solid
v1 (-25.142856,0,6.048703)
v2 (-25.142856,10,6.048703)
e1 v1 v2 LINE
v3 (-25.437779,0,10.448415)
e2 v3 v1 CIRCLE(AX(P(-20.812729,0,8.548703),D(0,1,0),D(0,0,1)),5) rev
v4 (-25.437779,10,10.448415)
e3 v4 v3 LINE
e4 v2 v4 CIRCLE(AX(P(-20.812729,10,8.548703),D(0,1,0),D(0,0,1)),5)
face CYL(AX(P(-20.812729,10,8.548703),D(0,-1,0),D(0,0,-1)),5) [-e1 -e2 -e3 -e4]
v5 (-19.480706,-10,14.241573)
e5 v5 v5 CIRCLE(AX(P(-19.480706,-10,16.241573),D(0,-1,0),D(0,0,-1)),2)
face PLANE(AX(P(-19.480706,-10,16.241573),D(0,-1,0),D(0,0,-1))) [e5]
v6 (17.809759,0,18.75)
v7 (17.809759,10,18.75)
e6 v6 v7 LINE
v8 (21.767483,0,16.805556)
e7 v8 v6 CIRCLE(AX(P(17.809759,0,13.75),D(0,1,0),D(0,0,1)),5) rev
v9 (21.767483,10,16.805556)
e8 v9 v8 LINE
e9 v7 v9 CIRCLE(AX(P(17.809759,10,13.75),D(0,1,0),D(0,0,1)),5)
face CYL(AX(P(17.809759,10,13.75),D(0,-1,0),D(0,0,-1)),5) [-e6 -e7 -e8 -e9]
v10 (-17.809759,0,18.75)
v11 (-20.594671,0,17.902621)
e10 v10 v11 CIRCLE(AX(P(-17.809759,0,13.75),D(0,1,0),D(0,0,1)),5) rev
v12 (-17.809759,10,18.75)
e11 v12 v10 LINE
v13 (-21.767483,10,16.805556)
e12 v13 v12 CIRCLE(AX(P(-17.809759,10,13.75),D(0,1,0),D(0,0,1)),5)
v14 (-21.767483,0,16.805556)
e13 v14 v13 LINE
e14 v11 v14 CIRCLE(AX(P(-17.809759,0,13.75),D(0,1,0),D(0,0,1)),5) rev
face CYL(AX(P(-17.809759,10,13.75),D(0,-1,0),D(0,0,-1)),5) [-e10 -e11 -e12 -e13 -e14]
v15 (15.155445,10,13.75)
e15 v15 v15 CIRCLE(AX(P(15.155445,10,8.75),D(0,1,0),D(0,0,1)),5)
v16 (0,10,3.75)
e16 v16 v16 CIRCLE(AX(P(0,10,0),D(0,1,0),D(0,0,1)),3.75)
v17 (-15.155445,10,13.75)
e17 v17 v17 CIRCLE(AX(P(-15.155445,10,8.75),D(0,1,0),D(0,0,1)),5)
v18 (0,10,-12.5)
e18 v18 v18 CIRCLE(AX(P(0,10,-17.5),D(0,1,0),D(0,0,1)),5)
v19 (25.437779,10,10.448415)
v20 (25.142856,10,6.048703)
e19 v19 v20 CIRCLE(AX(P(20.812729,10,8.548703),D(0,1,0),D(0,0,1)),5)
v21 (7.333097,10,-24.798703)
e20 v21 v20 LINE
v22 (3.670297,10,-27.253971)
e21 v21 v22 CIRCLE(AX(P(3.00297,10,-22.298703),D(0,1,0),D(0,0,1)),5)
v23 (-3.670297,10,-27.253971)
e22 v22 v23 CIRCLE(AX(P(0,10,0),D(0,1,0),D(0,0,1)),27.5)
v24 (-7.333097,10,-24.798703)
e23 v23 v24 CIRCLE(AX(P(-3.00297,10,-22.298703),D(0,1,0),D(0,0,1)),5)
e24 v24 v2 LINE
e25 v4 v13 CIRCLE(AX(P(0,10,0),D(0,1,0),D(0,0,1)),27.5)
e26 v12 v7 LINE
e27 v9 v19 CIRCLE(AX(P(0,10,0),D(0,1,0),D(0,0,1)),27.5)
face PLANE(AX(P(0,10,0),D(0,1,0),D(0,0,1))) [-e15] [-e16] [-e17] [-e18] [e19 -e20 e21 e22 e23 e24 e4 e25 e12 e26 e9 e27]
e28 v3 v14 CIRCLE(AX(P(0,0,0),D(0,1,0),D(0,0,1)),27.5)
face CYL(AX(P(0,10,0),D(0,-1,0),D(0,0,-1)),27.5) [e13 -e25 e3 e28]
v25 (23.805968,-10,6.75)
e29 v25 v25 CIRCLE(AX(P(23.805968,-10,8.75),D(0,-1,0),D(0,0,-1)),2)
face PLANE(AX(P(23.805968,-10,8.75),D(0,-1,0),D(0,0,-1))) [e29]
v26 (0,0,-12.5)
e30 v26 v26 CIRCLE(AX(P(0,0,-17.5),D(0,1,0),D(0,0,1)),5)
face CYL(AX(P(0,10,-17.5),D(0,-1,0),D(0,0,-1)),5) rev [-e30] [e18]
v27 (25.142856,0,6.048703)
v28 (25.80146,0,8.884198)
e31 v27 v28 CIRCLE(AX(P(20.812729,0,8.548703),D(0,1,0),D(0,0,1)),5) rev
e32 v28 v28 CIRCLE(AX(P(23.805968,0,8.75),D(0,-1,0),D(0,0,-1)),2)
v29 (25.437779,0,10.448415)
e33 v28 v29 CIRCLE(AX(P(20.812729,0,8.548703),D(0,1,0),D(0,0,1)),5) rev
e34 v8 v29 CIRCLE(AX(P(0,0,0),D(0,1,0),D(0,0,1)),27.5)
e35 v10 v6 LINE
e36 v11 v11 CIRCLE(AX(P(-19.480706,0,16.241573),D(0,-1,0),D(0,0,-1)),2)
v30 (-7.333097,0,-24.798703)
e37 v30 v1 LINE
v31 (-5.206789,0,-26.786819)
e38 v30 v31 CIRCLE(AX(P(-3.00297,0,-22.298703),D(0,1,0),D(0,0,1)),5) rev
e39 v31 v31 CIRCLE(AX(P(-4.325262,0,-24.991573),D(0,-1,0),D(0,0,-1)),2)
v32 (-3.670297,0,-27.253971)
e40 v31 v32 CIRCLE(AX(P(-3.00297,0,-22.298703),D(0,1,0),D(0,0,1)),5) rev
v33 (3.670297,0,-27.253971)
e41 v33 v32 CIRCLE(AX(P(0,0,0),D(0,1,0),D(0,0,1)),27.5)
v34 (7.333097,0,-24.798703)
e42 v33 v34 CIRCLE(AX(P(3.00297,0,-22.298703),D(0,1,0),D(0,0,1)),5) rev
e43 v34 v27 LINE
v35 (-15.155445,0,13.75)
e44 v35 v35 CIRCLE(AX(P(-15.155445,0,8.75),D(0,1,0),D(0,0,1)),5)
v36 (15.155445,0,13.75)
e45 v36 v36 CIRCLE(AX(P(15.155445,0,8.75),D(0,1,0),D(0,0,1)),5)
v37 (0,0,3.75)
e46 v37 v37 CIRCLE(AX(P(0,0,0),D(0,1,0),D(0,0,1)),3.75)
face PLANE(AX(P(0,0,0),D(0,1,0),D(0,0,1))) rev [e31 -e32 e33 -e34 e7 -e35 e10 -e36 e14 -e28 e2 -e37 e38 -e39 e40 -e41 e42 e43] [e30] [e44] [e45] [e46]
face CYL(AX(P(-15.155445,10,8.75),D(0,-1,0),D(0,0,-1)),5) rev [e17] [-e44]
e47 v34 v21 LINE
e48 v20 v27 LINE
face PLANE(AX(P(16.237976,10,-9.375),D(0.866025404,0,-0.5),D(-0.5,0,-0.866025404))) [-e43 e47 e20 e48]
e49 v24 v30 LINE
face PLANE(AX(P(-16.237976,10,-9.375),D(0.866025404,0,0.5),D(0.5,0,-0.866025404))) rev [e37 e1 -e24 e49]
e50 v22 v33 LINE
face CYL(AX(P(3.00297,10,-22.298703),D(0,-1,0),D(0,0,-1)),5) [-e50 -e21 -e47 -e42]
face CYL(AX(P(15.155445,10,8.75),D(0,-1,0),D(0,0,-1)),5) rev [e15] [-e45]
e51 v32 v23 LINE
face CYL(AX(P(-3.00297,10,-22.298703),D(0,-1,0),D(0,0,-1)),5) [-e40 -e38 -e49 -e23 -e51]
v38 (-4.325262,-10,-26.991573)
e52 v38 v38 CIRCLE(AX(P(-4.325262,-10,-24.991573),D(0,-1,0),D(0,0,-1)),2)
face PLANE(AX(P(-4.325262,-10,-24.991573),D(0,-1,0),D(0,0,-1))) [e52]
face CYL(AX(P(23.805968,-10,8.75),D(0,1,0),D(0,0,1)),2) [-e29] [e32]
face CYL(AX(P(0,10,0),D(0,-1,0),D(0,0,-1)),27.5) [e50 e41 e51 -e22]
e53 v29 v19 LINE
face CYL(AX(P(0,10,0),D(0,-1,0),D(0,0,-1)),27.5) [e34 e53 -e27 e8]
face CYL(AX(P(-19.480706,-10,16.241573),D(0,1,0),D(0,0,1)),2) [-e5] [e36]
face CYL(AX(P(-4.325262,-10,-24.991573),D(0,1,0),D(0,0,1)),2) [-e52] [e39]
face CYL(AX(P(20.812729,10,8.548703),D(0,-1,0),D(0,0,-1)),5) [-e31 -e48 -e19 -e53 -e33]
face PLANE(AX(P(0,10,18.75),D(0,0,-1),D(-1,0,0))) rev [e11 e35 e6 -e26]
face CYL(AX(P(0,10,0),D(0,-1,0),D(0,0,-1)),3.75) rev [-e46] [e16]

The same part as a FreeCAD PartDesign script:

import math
import FreeCAD as App
import Part
import Sketcher
Q = App.Units.Quantity


def edges_at(feature, points):
    """Names of the edges that pass closest to the given points."""
    edges = feature.Shape.Edges
    near = lambda p: min(range(len(edges)), key=lambda i: edges[i].distToShape(Part.Vertex(*p))[0])
    return sorted({f"Edge{near(p) + 1}" for p in points})

doc = App.newDocument("Part")
body = doc.addObject("PartDesign::Body", "Body")

# Sketch on XZ plane
sketch1 = body.newObject("Sketcher::SketchObject", "Sketch")
sketch1.AttachmentSupport = (doc.getObject("XZ_Plane"), [""])
sketch1.MapMode = "FlatFace"
sketch1.addGeometry(Part.ArcOfCircle(Part.Circle(App.Vector(0, 0, 0), App.Vector(0, 0, 1), 27.5), math.radians(-103), math.radians(-77)), False)
sketch1.addGeometry(Part.LineSegment(App.Vector(-6.2, -26.8, 0), App.Vector(-26.3, 8, 0)), False)
sketch1.addGeometry(Part.ArcOfCircle(Part.Circle(App.Vector(0, 0, 0), App.Vector(0, 0, 1), 27.5), math.radians(137), math.radians(163)), False)
sketch1.addGeometry(Part.LineSegment(App.Vector(-20.1, 18.8, 0), App.Vector(20.1, 18.8, 0)), False)
sketch1.addGeometry(Part.ArcOfCircle(Part.Circle(App.Vector(0, 0, 0), App.Vector(0, 0, 1), 27.5), math.radians(17), math.radians(43)), False)
sketch1.addGeometry(Part.LineSegment(App.Vector(26.3, 8, 0), App.Vector(6.2, -26.8, 0)), False)
sketch1.addGeometry(Part.Circle(App.Vector(-15.2, 8.8, 0), App.Vector(0, 0, 1), 5), False)
sketch1.addGeometry(Part.Circle(App.Vector(15.2, 8.8, 0), App.Vector(0, 0, 1), 5), False)
sketch1.addGeometry(Part.ArcOfCircle(Part.Circle(App.Vector(0, -17.5, 0), App.Vector(0, 0, 1), 5), math.radians(109), math.radians(289)), False)
sketch1.addGeometry(Part.ArcOfCircle(Part.Circle(App.Vector(0, -17.5, 0), App.Vector(0, 0, 1), 5), math.radians(-71), math.radians(0)), False)
sketch1.addGeometry(Part.ArcOfCircle(Part.Circle(App.Vector(0, -17.5, 0), App.Vector(0, 0, 1), 5), math.radians(0), math.radians(109)), False)
sketch1.addGeometry(Part.Circle(App.Vector(0, 0, 0), App.Vector(0, 0, 1), 3.8), False)
sketch1.addConstraint(Sketcher.Constraint("Coincident", 0, 1, 1, 1))
sketch1.addConstraint(Sketcher.Constraint("Coincident", 1, 2, 2, 2))
sketch1.addConstraint(Sketcher.Constraint("Coincident", 2, 1, 3, 1))
sketch1.addConstraint(Sketcher.Constraint("Coincident", 3, 2, 4, 2))
sketch1.addConstraint(Sketcher.Constraint("Coincident", 4, 1, 5, 1))
sketch1.addConstraint(Sketcher.Constraint("Coincident", 5, 2, 0, 2))
sketch1.addConstraint(Sketcher.Constraint("Tangent", 8, 2, 9, 1))
sketch1.addConstraint(Sketcher.Constraint("Tangent", 9, 2, 10, 1))
sketch1.addConstraint(Sketcher.Constraint("Tangent", 10, 2, 8, 1))
sketch1.addConstraint(Sketcher.Constraint("Horizontal", 3))
sketch1.addConstraint(Sketcher.Constraint("Coincident", 0, 3, -1, 1))
sketch1.addConstraint(Sketcher.Constraint("Coincident", 2, 3, -1, 1))
sketch1.addConstraint(Sketcher.Constraint("Coincident", 4, 3, -1, 1))
sketch1.addConstraint(Sketcher.Constraint("Coincident", 11, 3, -1, 1))
sketch1.addConstraint(Sketcher.Constraint("Equal", 0, 2))
sketch1.addConstraint(Sketcher.Constraint("Equal", 2, 4))
sketch1.addConstraint(Sketcher.Constraint("Equal", 6, 7))
sketch1.addConstraint(Sketcher.Constraint("Equal", 7, 8))
sketch1.addConstraint(Sketcher.Constraint("Symmetric", 6, 3, 7, 3, -2))
sketch1.addConstraint(Sketcher.Constraint("PointOnObject", 8, 3, -2))
sketch1.addConstraint(Sketcher.Constraint("Horizontal", 1, 2, 4, 1))
sketch1.addConstraint(Sketcher.Constraint("Horizontal", 0, 1, 5, 2))
sketch1.addConstraint(Sketcher.Constraint("Horizontal", 10, 3, 9, 2))
sketch1.addConstraint(Sketcher.Constraint("Diameter", 6, 10.0))
sketch1.addConstraint(Sketcher.Constraint("Diameter", 11, 7.5))
sketch1.addConstraint(Sketcher.Constraint("Radius", 0, 27.5))
sketch1.addConstraint(Sketcher.Constraint("Angle", 1, Q("120 deg")))
sketch1.addConstraint(Sketcher.Constraint("DistanceY", 6, 3, 2, 1, 10.0))
sketch1.addConstraint(Sketcher.Constraint("DistanceY", 8, 3, -1, 1, 17.5))
sketch1.addConstraint(Sketcher.Constraint("DistanceY", -1, 1, 6, 3, 8.75))
sketch1.addConstraint(Sketcher.Constraint("DistanceY", 0, 1, -1, 1, 26.7967))
sketch1.addConstraint(Sketcher.Constraint("DistanceX", 2, 1, 6, 3, 4.961402))
sketch1.addConstraint(Sketcher.Constraint("DistanceX", -1, 1, 8, 2, 1.666208))
sketch1.addConstraint(Sketcher.Constraint("DistanceX", 10, 2, -1, 1, 1.666208))
pad1 = body.newObject("PartDesign::Pad", "Pad")
pad1.Profile = sketch1
pad1.Length = 10
pad1.Reversed = True
doc.recompute()

fillet = body.newObject("PartDesign::Fillet", "Fillet")
fillet.Base = (pad1, edges_at(pad1, [
    (-20.117, 5, 18.75),
    (-26.296, 5, 8.047),
    (-6.18, 5, -26.797),
    (6.18, 5, -26.797),
    (26.296, 5, 8.047),
    (20.117, 5, 18.75),
]))
fillet.Radius = 5

# Sketch on XZ plane
sketch2 = body.newObject("Sketcher::SketchObject", "Sketch001")
sketch2.AttachmentSupport = (doc.getObject("XZ_Plane"), [""])
sketch2.MapMode = "FlatFace"
sketch2.addGeometry(Part.Circle(App.Vector(23.8, 8.8, 0), App.Vector(0, 0, 1), 2), False)
sketch2.addGeometry(Part.Circle(App.Vector(-4.3, -25, 0), App.Vector(0, 0, 1), 2), False)
sketch2.addGeometry(Part.Circle(App.Vector(-19.5, 16.2, 0), App.Vector(0, 0, 1), 2), False)
sketch2.addConstraint(Sketcher.Constraint("Equal", 0, 1))
sketch2.addConstraint(Sketcher.Constraint("Equal", 1, 2))
sketch2.addConstraint(Sketcher.Constraint("Diameter", 0, 4.0))
sketch2.addConstraint(Sketcher.Constraint("DistanceY", -1, 1, 0, 3, 8.75))
sketch2.addConstraint(Sketcher.Constraint("DistanceX", 1, 3, -1, 1, 4.325262))
sketch2.addConstraint(Sketcher.Constraint("DistanceX", 1, 3, 0, 3, 28.131229))
sketch2.addConstraint(Sketcher.Constraint("DistanceY", 1, 3, -1, 1, 24.991573))
sketch2.addConstraint(Sketcher.Constraint("DistanceX", 2, 3, -1, 1, 19.480706))
sketch2.addConstraint(Sketcher.Constraint("DistanceY", -1, 1, 2, 3, 16.241573))
pad2 = body.newObject("PartDesign::Pad", "Pad001")
pad2.Profile = sketch2
pad2.Length = 10

doc.recompute()
